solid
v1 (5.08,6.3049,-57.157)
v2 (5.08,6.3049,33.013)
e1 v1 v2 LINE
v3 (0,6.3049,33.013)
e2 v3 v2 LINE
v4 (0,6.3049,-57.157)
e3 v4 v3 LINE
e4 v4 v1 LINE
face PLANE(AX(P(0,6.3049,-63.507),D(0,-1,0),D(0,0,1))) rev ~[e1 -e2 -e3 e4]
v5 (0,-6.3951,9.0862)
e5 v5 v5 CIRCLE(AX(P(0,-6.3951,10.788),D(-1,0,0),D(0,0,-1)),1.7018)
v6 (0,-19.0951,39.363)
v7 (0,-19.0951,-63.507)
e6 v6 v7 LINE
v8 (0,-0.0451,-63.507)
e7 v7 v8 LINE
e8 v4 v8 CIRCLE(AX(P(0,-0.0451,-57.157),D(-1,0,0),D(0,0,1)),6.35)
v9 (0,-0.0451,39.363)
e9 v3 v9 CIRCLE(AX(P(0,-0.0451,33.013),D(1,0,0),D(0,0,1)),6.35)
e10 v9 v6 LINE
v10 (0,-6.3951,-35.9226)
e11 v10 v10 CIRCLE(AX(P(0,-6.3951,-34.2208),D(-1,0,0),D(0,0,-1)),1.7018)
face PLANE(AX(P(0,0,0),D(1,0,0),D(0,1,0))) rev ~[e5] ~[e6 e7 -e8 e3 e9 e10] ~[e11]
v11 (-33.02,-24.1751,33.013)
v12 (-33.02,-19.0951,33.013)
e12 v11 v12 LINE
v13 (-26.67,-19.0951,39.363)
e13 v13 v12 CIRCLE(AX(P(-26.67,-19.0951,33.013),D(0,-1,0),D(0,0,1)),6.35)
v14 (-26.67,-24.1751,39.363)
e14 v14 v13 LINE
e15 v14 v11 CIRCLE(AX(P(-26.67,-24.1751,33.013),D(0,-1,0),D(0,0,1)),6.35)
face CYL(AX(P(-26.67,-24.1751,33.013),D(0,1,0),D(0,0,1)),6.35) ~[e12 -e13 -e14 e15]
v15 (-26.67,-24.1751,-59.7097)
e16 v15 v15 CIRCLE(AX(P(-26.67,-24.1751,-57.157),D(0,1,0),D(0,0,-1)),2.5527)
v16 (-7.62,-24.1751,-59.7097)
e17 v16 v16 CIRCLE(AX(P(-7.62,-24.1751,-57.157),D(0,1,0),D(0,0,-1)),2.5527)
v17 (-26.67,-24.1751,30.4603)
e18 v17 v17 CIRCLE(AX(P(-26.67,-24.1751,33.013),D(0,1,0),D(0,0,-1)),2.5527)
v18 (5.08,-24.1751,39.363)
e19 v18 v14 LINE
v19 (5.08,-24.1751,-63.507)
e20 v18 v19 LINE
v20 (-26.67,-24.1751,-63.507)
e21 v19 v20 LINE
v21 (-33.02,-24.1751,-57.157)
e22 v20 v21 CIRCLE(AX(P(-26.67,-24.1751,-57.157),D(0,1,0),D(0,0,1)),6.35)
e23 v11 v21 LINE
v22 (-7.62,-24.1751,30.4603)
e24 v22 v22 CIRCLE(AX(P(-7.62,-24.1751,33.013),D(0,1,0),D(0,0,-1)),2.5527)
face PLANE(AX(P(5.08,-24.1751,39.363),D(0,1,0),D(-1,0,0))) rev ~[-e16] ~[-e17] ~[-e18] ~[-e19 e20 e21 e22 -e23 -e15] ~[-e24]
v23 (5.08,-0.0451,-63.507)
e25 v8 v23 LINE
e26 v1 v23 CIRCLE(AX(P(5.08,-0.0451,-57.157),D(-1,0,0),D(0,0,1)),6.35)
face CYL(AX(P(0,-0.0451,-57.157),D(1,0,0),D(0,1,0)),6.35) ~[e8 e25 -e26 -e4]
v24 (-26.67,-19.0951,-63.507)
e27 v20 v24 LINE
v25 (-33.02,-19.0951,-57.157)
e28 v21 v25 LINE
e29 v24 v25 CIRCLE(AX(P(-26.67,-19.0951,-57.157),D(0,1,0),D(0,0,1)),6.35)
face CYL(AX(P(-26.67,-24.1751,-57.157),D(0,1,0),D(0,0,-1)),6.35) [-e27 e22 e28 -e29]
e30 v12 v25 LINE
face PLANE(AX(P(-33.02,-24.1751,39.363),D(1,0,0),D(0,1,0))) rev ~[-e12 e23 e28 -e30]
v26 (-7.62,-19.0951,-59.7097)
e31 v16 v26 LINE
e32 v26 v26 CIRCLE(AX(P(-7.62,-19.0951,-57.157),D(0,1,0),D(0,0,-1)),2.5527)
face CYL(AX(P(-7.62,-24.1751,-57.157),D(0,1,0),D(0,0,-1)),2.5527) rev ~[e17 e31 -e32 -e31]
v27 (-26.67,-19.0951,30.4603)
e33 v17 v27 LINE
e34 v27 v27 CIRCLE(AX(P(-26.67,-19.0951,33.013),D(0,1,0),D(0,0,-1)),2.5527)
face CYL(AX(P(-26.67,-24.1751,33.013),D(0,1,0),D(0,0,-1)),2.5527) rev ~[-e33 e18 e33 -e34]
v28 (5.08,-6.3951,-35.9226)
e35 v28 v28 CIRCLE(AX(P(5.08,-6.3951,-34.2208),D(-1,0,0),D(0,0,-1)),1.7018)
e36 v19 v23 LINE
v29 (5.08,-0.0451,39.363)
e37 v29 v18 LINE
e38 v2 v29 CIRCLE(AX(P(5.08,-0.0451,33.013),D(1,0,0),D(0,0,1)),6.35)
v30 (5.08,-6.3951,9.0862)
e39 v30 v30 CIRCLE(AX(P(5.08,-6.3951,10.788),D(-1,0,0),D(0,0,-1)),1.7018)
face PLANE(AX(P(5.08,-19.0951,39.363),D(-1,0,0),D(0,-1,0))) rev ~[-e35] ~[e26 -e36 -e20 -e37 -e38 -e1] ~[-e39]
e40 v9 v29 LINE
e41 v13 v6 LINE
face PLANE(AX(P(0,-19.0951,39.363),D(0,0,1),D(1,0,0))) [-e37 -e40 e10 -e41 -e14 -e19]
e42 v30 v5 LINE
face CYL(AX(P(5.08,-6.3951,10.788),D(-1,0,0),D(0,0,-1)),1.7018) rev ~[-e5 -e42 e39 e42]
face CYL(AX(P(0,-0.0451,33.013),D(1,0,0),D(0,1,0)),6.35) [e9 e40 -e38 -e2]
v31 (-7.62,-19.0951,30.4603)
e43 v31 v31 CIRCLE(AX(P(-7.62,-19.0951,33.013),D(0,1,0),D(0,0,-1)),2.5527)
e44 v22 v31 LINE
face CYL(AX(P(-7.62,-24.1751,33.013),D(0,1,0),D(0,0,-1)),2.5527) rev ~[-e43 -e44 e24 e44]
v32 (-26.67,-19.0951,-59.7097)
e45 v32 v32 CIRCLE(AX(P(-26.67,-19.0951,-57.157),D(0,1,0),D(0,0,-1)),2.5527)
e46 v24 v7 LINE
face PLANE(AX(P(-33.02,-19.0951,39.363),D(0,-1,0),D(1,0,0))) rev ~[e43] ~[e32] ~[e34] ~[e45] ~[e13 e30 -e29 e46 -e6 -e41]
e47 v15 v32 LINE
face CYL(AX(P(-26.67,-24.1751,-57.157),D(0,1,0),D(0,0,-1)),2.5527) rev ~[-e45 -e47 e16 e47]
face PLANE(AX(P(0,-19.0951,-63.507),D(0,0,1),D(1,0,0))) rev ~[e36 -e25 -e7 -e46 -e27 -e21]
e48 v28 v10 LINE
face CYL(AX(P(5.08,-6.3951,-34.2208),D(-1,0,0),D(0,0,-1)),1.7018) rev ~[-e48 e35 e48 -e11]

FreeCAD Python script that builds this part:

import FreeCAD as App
import Part
import Sketcher
Q = App.Units.Quantity


def edges_at(feature, points):
    """Names of the edges that pass closest to the given points."""
    edges = feature.Shape.Edges
    near = lambda p: min(range(len(edges)), key=lambda i: edges[i].distToShape(Part.Vertex(*p))[0])
    return sorted({f"Edge{near(p) + 1}" for p in points})


def add_polygon(sketch, points):
    """Adds a closed chain of lines whose ends are joined by coincident constraints."""
    first, n = sketch.GeometryCount, len(points)
    for a, b in zip(points, points[1:] + points[:1]):
        sketch.addGeometry(Part.LineSegment(App.Vector(*a, 0), App.Vector(*b, 0)), False)
    for i in range(n):
        sketch.addConstraint(Sketcher.Constraint("Coincident", first + i, 2, first + (i + 1) % n, 1))

doc = App.newDocument("Part")
params = doc.addObject("Spreadsheet::Sheet", "Params")
for row, (alias, value) in enumerate([
    ("sketch1_width", "1 in"),
    ("sketch1_height", "4.05 in"),
    ("pad1_length", "0.2 in"),
    ("fillet_radius", "0.25 in"),
    ("sketch2_width", "1.5 in"),
    ("sketch2_height", "0.2 in"),
    ("pad2_length", "4.05 in"),
    ("fillet2_radius", "0.25 in"),
    ("sketch3_diameter", "0.134 in"),
    ("hole_diameter", "0.134 in"),
    ("hole_depth", "1 in"),
    ("sketch4_diameter", "0.201 in"),
    ("hole2_diameter", "0.201 in"),
    ("hole2_depth", "1 in"),
], start=1):
    params.set(f"A{row}", alias)
    params.set(f"B{row}", "=" + value)
    params.setAlias(f"B{row}", alias)

body = doc.addObject("PartDesign::Body", "Body")

sketch1 = body.newObject("Sketcher::SketchObject", "Sketch")
sketch1.AttachmentSupport = (doc.getObject("YZ_Plane"), [""])
sketch1.MapMode = "FlatFace"
add_polygon(sketch1, [(6, -64), (6, 39), (-19, 39), (-19, -64)])
sketch1.addConstraint([
    Sketcher.Constraint("Vertical", 0),
    Sketcher.Constraint("Horizontal", 1),
    Sketcher.Constraint("Vertical", 2),
    Sketcher.Constraint("Horizontal", 3),
    Sketcher.Constraint("DistanceX", 1, 2, 1, 1, Q("1 in")),
    Sketcher.Constraint("DistanceY", 0, 1, 0, 2, Q("4.05 in")),
    Sketcher.Constraint("DistanceX", -1, 1, 0, 2, 6.305),
    Sketcher.Constraint("DistanceY", -1, 1, 0, 2, 39.363),
])
sketch1.setExpression("Constraints[8]", "Params.sketch1_width")
sketch1.setExpression("Constraints[9]", "Params.sketch1_height")
pad1 = body.newObject("PartDesign::Pad", "Pad")
pad1.Profile = sketch1
pad1.setExpression("Length", "Params.pad1_length")
doc.recompute()

fillet = body.newObject("PartDesign::Fillet", "Fillet")
fillet.Base = (pad1, edges_at(pad1, [(2.54, 6.305, 39.363), (2.54, 6.305, -63.507)]))
fillet.setExpression("Radius", "Params.fillet_radius")

sketch2 = body.newObject("Sketcher::SketchObject", "Sketch001")
sketch2.AttachmentSupport = (doc.getObject("XY_Plane"), [""])
sketch2.MapMode = "FlatFace"
sketch2.AttachmentOffset = App.Placement(App.Vector(0, 0, 39.363), App.Rotation())
add_polygon(sketch2, [(5, -19), (-33, -19), (-33, -24), (5, -24)])
sketch2.addConstraint([
    Sketcher.Constraint("Horizontal", 0),
    Sketcher.Constraint("Vertical", 1),
    Sketcher.Constraint("Horizontal", 2),
    Sketcher.Constraint("Vertical", 3),
    Sketcher.Constraint("DistanceX", 0, 2, 0, 1, Q("1.5 in")),
    Sketcher.Constraint("DistanceY", 1, 2, 1, 1, Q("0.2 in")),
    Sketcher.Constraint("DistanceX", -1, 1, 2, 2, Q("0.2 in")),
    Sketcher.Constraint("DistanceY", 0, 2, -1, 1, 19.095),
])
sketch2.setExpression("Constraints[8]", "Params.sketch2_width")
sketch2.setExpression("Constraints[9]", "Params.sketch2_height")
pad2 = body.newObject("PartDesign::Pad", "Pad001")
pad2.Profile = sketch2
pad2.setExpression("Length", "Params.pad2_length")
pad2.Reversed = True
doc.recompute()

fillet2 = body.newObject("PartDesign::Fillet", "Fillet001")
fillet2.Base = (pad2, edges_at(pad2, [(-33.02, -21.635, -63.507), (-33.02, -21.635, 39.363)]))
fillet2.setExpression("Radius", "Params.fillet2_radius")

sketch3 = body.newObject("Sketcher::SketchObject", "Sketch002")
sketch3.AttachmentSupport = (doc.getObject("YZ_Plane"), [""])
sketch3.MapMode = "FlatFace"
sketch3.AttachmentOffset = App.Placement(App.Vector(0, 0, 0.2 * 25.4), App.Rotation())
sketch3.addGeometry([
    Part.Circle(App.Vector(-6.4, 10.8, 0), App.Vector(0, 0, 1), 1.7),
    Part.Circle(App.Vector(-6.4, -34.2, 0), App.Vector(0, 0, 1), 1.7),
], False)
sketch3.addConstraint([
    Sketcher.Constraint("Equal", 0, 1),
    Sketcher.Constraint("Vertical", 0, 3, 1, 3),
    Sketcher.Constraint("Diameter", 0, Q("0.134 in")),
    Sketcher.Constraint("DistanceY", 1, 3, 0, 3, Q("1.772 in")),
    Sketcher.Constraint("DistanceX", 0, 3, -1, 1, 6.395),
    Sketcher.Constraint("DistanceY", -1, 1, 0, 3, 10.788),
])
sketch3.setExpression("Constraints[2]", "Params.sketch3_diameter")
doc.recompute()
hole = body.newObject("PartDesign::Hole", "Hole")
hole.Profile = sketch3
hole.ThreadType = "None"
hole.setExpression("Diameter", "Params.hole_diameter")
hole.DepthType = "Dimension"
hole.setExpression("Depth", "Params.hole_depth")
hole.DrillPoint = "Angled"
hole.DrillPointAngle = 118

sketch4 = body.newObject("Sketcher::SketchObject", "Sketch003")
sketch4.AttachmentSupport = (doc.getObject("XZ_Plane"), [""])
sketch4.MapMode = "FlatFace"
sketch4.AttachmentOffset = App.Placement(App.Vector(0, 0, 24.1751), App.Rotation())
sketch4.addGeometry([
    Part.Circle(App.Vector(-7.6, 33, 0), App.Vector(0, 0, 1), 2.6),
    Part.Circle(App.Vector(-26.7, 33, 0), App.Vector(0, 0, 1), 2.6),
    Part.Circle(App.Vector(-26.7, -57.2, 0), App.Vector(0, 0, 1), 2.6),
    Part.Circle(App.Vector(-7.6, -57.2, 0), App.Vector(0, 0, 1), 2.6),
], False)
sketch4.addConstraint([
    Sketcher.Constraint("Equal", 0, 1),
    Sketcher.Constraint("Equal", 1, 2),
    Sketcher.Constraint("Equal", 2, 3),
    Sketcher.Constraint("Horizontal", 0, 3, 1, 3),
    Sketcher.Constraint("Horizontal", 2, 3, 3, 3),
    Sketcher.Constraint("Vertical", 1, 3, 2, 3),
    Sketcher.Constraint("Vertical", 0, 3, 3, 3),
    Sketcher.Constraint("Diameter", 0, Q("0.201 in")),
    Sketcher.Constraint("DistanceX", 0, 3, -1, 1, Q("0.3 in")),
    Sketcher.Constraint("DistanceX", 1, 3, -1, 1, Q("1.05 in")),
    Sketcher.Constraint("DistanceY", 2, 3, 1, 3, Q("3.55 in")),
    Sketcher.Constraint("DistanceY", -1, 1, 0, 3, 33.013),
])
sketch4.setExpression("Constraints[7]", "Params.sketch4_diameter")
doc.recompute()
hole2 = body.newObject("PartDesign::Hole", "Hole001")
hole2.Profile = sketch4
hole2.ThreadType = "None"
hole2.setExpression("Diameter", "Params.hole2_diameter")
hole2.DepthType = "Dimension"
hole2.setExpression("Depth", "Params.hole2_depth")
hole2.DrillPoint = "Angled"
hole2.DrillPointAngle = 118

doc.recompute()
